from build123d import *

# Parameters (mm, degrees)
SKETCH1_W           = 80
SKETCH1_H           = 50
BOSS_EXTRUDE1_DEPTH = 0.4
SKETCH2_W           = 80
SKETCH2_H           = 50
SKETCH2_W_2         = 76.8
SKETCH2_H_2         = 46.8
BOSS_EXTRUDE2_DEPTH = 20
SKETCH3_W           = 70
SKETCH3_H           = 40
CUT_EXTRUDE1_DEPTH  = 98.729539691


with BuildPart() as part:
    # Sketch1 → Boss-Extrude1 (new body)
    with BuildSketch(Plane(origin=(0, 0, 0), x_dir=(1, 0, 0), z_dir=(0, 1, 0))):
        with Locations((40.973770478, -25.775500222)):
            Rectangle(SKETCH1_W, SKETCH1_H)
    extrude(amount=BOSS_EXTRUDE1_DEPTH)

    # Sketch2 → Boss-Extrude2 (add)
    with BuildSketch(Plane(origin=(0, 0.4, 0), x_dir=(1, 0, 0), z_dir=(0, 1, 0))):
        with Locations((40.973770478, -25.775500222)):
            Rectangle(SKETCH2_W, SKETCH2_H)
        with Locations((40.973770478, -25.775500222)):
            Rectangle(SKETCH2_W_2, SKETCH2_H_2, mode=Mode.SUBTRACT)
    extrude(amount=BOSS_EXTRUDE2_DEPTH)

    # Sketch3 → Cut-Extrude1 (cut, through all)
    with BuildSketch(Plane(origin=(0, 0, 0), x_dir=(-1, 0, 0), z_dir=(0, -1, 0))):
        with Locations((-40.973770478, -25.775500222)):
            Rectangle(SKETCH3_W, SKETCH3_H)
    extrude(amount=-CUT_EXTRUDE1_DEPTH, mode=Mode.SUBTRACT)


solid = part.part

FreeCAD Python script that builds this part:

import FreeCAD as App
import Part
import Sketcher
Q = App.Units.Quantity


def add_polygon(sketch, points):
    """Adds a closed chain of lines whose ends are joined by coincident constraints."""
    first, n = sketch.GeometryCount, len(points)
    for a, b in zip(points, points[1:] + points[:1]):
        sketch.addGeometry(Part.LineSegment(App.Vector(*a, 0), App.Vector(*b, 0)), False)
    for i in range(n):
        sketch.addConstraint(Sketcher.Constraint("Coincident", first + i, 2, first + (i + 1) % n, 1))

doc = App.newDocument("Part")
body = doc.addObject("PartDesign::Body", "Body")

sketch1 = body.newObject("Sketcher::SketchObject", "Sketch")
sketch1.AttachmentSupport = (doc.getObject("XZ_Plane"), [""])
sketch1.MapMode = "FlatFace"
add_polygon(sketch1, [(0.97377, 0.7755), (0.97377, 50.7755), (80.97377, 50.7755), (80.97377, 0.7755)])
sketch1.addConstraint(Sketcher.Constraint("Vertical", 0))
sketch1.addConstraint(Sketcher.Constraint("Horizontal", 1))
sketch1.addConstraint(Sketcher.Constraint("Vertical", 2))
sketch1.addConstraint(Sketcher.Constraint("Horizontal", 3))
sketch1.addConstraint(Sketcher.Constraint("DistanceX", 1, 1, 1, 2, Q("80 mm")))
sketch1.addConstraint(Sketcher.Constraint("DistanceY", 0, 1, 0, 2, Q("50 mm")))
sketch1.addConstraint(Sketcher.Constraint("DistanceY", -1, 1, 0, 2, Q("50.7755 mm")))
sketch1.addConstraint(Sketcher.Constraint("DistanceX", -1, 1, 0, 2, Q("0.97377 mm")))
pad1 = body.newObject("PartDesign::Pad", "Pad")
pad1.Profile = sketch1
pad1.Length = 0.4
pad1.Reversed = True

sketch2 = body.newObject("Sketcher::SketchObject", "Sketch001")
sketch2.AttachmentSupport = (doc.getObject("XZ_Plane"), [""])
sketch2.MapMode = "FlatFace"
sketch2.AttachmentOffset = App.Placement(App.Vector(0, 0, -0.4), App.Rotation())
add_polygon(sketch2, [(0.97377, 0.7755), (0.97377, 50.7755), (80.97377, 50.7755), (80.97377, 0.7755)])
add_polygon(sketch2, [(79.37377, 49.1755), (2.57377, 49.1755), (2.57377, 2.3755), (79.37377, 2.3755)])
sketch2.addConstraint(Sketcher.Constraint("Vertical", 0))
sketch2.addConstraint(Sketcher.Constraint("Horizontal", 1))
sketch2.addConstraint(Sketcher.Constraint("Vertical", 2))
sketch2.addConstraint(Sketcher.Constraint("Horizontal", 3))
sketch2.addConstraint(Sketcher.Constraint("Horizontal", 4))
sketch2.addConstraint(Sketcher.Constraint("Vertical", 5))
sketch2.addConstraint(Sketcher.Constraint("Horizontal", 6))
sketch2.addConstraint(Sketcher.Constraint("Vertical", 7))
sketch2.addConstraint(Sketcher.Constraint("DistanceX", 1, 1, 1, 2, Q("80 mm")))
sketch2.addConstraint(Sketcher.Constraint("DistanceY", 0, 1, 0, 2, Q("50 mm")))
sketch2.addConstraint(Sketcher.Constraint("DistanceX", 4, 2, 4, 1, Q("76.8 mm")))
sketch2.addConstraint(Sketcher.Constraint("DistanceY", 5, 2, 5, 1, Q("46.8 mm")))
sketch2.addConstraint(Sketcher.Constraint("DistanceX", 0, 2, 4, 2, Q("1.6 mm")))
sketch2.addConstraint(Sketcher.Constraint("DistanceY", 4, 2, 0, 2, Q("1.6 mm")))
sketch2.addConstraint(Sketcher.Constraint("DistanceY", -1, 1, 0, 2, Q("50.7755 mm")))
sketch2.addConstraint(Sketcher.Constraint("DistanceX", -1, 1, 0, 2, Q("0.97377 mm")))
pad2 = body.newObject("PartDesign::Pad", "Pad001")
pad2.Profile = sketch2
pad2.Length = 20
pad2.Reversed = True

sketch3 = body.newObject("Sketcher::SketchObject", "Sketch002")
sketch3.AttachmentSupport = (doc.getObject("XZ_Plane"), [""])
sketch3.MapMode = "FlatFace"
add_polygon(sketch3, [(75.97377, 5.7755), (75.97377, 45.7755), (5.97377, 45.7755), (5.97377, 5.7755)])
sketch3.addConstraint(Sketcher.Constraint("Vertical", 0))
sketch3.addConstraint(Sketcher.Constraint("Horizontal", 1))
sketch3.addConstraint(Sketcher.Constraint("Vertical", 2))
sketch3.addConstraint(Sketcher.Constraint("Horizontal", 3))
sketch3.addConstraint(Sketcher.Constraint("DistanceX", 1, 2, 1, 1, Q("70 mm")))
sketch3.addConstraint(Sketcher.Constraint("DistanceY", 0, 1, 0, 2, Q("40 mm")))
sketch3.addConstraint(Sketcher.Constraint("DistanceY", -1, 1, 0, 2, Q("45.7755 mm")))
sketch3.addConstraint(Sketcher.Constraint("DistanceX", -1, 1, 0, 2, Q("75.97377 mm")))
pocket1 = body.newObject("PartDesign::Pocket", "Pocket")
pocket1.Profile = sketch3
pocket1.Type = "ThroughAll"

doc.recompute()
